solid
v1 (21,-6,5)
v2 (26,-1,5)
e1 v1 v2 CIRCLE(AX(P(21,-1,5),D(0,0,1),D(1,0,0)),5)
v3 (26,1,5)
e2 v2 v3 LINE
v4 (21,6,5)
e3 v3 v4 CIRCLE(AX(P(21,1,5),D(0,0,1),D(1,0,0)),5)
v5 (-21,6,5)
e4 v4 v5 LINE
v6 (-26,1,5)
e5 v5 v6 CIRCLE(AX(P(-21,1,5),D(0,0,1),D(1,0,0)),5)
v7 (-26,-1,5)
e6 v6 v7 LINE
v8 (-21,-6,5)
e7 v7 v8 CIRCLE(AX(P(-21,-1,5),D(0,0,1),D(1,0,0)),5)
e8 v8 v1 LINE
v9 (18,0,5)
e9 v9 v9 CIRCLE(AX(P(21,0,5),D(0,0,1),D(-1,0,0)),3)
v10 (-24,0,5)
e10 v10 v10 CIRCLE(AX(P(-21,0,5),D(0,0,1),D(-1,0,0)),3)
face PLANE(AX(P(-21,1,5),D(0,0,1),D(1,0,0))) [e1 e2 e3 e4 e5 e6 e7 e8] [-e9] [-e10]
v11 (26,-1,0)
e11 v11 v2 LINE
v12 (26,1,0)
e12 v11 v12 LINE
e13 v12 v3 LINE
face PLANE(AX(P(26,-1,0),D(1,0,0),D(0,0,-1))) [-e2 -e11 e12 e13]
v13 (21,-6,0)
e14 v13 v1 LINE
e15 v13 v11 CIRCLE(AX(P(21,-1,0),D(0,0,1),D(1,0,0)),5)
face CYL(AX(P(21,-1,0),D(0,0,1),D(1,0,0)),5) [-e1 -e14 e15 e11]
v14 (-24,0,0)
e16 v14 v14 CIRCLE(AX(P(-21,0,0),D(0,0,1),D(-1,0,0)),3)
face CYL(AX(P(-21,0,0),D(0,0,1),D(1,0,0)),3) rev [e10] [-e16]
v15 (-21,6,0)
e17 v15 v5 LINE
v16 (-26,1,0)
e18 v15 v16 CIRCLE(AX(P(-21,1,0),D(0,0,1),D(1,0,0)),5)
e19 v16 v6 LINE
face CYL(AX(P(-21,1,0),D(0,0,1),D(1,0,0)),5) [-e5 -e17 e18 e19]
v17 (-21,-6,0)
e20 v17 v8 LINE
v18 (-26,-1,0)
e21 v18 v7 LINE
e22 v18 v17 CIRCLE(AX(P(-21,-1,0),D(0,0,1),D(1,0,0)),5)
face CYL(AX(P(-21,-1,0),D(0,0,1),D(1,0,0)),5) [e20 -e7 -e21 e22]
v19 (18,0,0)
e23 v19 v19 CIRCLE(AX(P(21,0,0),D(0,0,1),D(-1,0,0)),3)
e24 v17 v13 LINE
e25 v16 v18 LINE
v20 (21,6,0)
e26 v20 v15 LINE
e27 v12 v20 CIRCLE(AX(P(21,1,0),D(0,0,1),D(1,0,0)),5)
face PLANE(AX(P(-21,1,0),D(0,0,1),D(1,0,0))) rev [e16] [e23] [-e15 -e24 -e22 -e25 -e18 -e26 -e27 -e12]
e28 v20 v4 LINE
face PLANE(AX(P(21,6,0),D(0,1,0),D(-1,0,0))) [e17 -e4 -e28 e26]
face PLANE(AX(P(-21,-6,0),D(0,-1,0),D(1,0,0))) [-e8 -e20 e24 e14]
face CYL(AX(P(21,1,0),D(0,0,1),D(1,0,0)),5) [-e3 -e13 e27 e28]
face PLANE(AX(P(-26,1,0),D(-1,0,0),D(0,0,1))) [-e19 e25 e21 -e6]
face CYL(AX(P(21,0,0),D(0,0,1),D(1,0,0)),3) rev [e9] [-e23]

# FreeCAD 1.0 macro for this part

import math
import FreeCAD as App
import Part
import Sketcher

V = App.Vector
Q = App.Units.Quantity

doc = App.newDocument("Part")
params = doc.addObject("Spreadsheet::Sheet", "Params")
for row, (alias, value) in enumerate([
    ("sketch1_diameter", "6 mm"),
    ("sketch1_radius", "5 mm"),
    ("sketch1_width", "42 mm"),
    ("sketch1_height", "2 mm"),
    ("pad1_length", "5 mm"),
], start=1):
    params.set(f"A{row}", alias)
    params.set(f"B{row}", "=" + value)
    params.setAlias(f"B{row}", alias)

body = doc.addObject("PartDesign::Body", "Body")

# Sketch on XY plane
sketch1 = body.newObject("Sketcher::SketchObject", "Sketch")
sketch1.AttachmentSupport = (doc.getObject("XY_Plane"), [""])
sketch1.MapMode = "FlatFace"
sketch1.AttachmentOffset = App.Placement(V(0, 0, 5), App.Rotation())
sketch1.addGeometry([
    Part.LineSegment(V(-26, 1, 0), V(-26, -1, 0)),  # 0
    Part.ArcOfCircle(Part.Circle(V(-21, -1, 0), V(0, 0, 1), 5), math.radians(180), math.radians(270)),  # 1
    Part.LineSegment(V(-21, -6, 0), V(21, -6, 0)),  # 2
    Part.ArcOfCircle(Part.Circle(V(21, -1, 0), V(0, 0, 1), 5), math.radians(-90), math.radians(0)),  # 3
    Part.LineSegment(V(26, -1, 0), V(26, 1, 0)),  # 4
    Part.ArcOfCircle(Part.Circle(V(21, 1, 0), V(0, 0, 1), 5), math.radians(0), math.radians(90)),  # 5
    Part.LineSegment(V(21, 6, 0), V(-21, 6, 0)),  # 6
    Part.ArcOfCircle(Part.Circle(V(-21, 1, 0), V(0, 0, 1), 5), math.radians(90), math.radians(180)),  # 7
    Part.Circle(V(-21, 0, 0), V(0, 0, 1), 3),  # 8
    Part.Circle(V(21, 0, 0), V(0, 0, 1), 3),  # 9
], False)
sketch1.addConstraint([
    Sketcher.Constraint("Tangent", 0, 2, 1, 1),
    Sketcher.Constraint("Tangent", 1, 2, 2, 1),
    Sketcher.Constraint("Tangent", 2, 2, 3, 1),
    Sketcher.Constraint("Tangent", 3, 2, 4, 1),
    Sketcher.Constraint("Tangent", 4, 2, 5, 1),
    Sketcher.Constraint("Tangent", 5, 2, 6, 1),
    Sketcher.Constraint("Tangent", 6, 2, 7, 1),
    Sketcher.Constraint("Tangent", 7, 2, 0, 1),
    Sketcher.Constraint("Vertical", 0),
    Sketcher.Constraint("Horizontal", 2),
    Sketcher.Constraint("Vertical", 4),
    Sketcher.Constraint("Horizontal", 6),
    Sketcher.Constraint("Equal", 1, 3),
    Sketcher.Constraint("Equal", 3, 5),
    Sketcher.Constraint("Equal", 5, 7),
    Sketcher.Constraint("Equal", 8, 9),
    Sketcher.Constraint("Symmetric", 1, 3, 5, 3, -1, 1),
    Sketcher.Constraint("Symmetric", 8, 3, 9, 3, -1, 1),
    Sketcher.Constraint("PointOnObject", 8, 3, -1),
    Sketcher.Constraint("Vertical", 7, 3, 8, 3),
    Sketcher.Constraint("Diameter", 8, Q("6 mm")),
    Sketcher.Constraint("Radius", 1, Q("5 mm")),
    Sketcher.Constraint("DistanceX", 2, 1, 2, 2, Q("42 mm")),
    Sketcher.Constraint("DistanceY", 0, 2, 0, 1, Q("2 mm")),
])
sketch1.setExpression("Constraints[20]", "Params.sketch1_diameter")
sketch1.setExpression("Constraints[21]", "Params.sketch1_radius")
sketch1.setExpression("Constraints[22]", "Params.sketch1_width")
sketch1.setExpression("Constraints[23]", "Params.sketch1_height")
pad1 = body.newObject("PartDesign::Pad", "Pad")
pad1.Profile = sketch1
pad1.setExpression("Length", "Params.pad1_length")
pad1.Reversed = True

doc.recompute()
